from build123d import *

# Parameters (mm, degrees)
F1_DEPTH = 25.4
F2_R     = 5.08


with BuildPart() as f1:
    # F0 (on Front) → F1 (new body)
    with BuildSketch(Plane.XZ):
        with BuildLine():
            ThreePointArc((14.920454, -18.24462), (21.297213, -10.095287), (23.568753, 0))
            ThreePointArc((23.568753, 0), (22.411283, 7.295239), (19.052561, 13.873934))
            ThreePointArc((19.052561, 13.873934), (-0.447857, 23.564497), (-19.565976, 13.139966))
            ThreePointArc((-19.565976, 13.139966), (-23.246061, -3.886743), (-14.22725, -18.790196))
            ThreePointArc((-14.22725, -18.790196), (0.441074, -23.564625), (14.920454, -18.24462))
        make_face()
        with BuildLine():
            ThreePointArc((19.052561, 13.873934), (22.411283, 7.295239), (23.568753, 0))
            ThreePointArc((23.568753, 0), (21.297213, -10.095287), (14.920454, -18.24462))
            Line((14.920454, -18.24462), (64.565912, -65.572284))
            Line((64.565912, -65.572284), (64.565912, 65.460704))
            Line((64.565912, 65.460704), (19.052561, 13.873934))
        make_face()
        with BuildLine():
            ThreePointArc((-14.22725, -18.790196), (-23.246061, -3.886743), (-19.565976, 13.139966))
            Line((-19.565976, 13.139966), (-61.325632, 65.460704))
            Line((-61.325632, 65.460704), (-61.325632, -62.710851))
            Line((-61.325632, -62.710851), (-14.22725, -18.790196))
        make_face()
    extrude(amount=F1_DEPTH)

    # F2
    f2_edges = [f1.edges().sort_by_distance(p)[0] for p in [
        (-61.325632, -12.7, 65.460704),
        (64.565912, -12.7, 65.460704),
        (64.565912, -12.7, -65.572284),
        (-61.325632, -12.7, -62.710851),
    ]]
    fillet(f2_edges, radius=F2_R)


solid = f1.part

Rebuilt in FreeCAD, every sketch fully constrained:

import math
import FreeCAD as App
import Part
import Sketcher
from FreeCAD import Vector
Q = App.Units.Quantity


def edges_at(feature, points):
    """Names of the edges that pass closest to the given points."""
    edges = feature.Shape.Edges
    near = lambda p: min(range(len(edges)), key=lambda i: edges[i].distToShape(Part.Vertex(*p))[0])
    return sorted({f"Edge{near(p) + 1}" for p in points})

doc = App.newDocument("Part")
body = doc.addObject("PartDesign::Body", "Body")

sketch1 = body.newObject("Sketcher::SketchObject", "Sketch")
sketch1.AttachmentSupport = (doc.getObject("XZ_Plane"), [""])
sketch1.MapMode = "FlatFace"
sketch1.addGeometry(Part.ArcOfCircle(Part.Circle(Vector(0, -0.000001, 0), Vector(0, 0, 1), 23.568754), math.radians(36.061833), math.radians(146.115785)), False)
sketch1.addGeometry(Part.LineSegment(Vector(-19.565976, 13.139966, 0), Vector(-61.325632, 65.460704, 0)), False)
sketch1.addGeometry(Part.LineSegment(Vector(-61.325632, 65.460704, 0), Vector(-61.325632, -62.710851, 0)), False)
sketch1.addGeometry(Part.LineSegment(Vector(-61.325632, -62.710851, 0), Vector(-14.22725, -18.790196, 0)), False)
sketch1.addGeometry(Part.ArcOfCircle(Part.Circle(Vector(0, 0.000001, 0), Vector(0, 0, 1), 23.568754), math.radians(-127.131674), math.radians(-50.723694)), False)
sketch1.addGeometry(Part.LineSegment(Vector(14.920454, -18.24462, 0), Vector(64.565912, -65.572284, 0)), False)
sketch1.addGeometry(Part.LineSegment(Vector(64.565912, -65.572284, 0), Vector(64.565912, 65.460704, 0)), False)
sketch1.addGeometry(Part.LineSegment(Vector(64.565912, 65.460704, 0), Vector(19.052561, 13.873934, 0)), False)
sketch1.addConstraint(Sketcher.Constraint("Coincident", 0, 2, 1, 1))
sketch1.addConstraint(Sketcher.Constraint("Coincident", 1, 2, 2, 1))
sketch1.addConstraint(Sketcher.Constraint("Coincident", 2, 2, 3, 1))
sketch1.addConstraint(Sketcher.Constraint("Coincident", 3, 2, 4, 1))
sketch1.addConstraint(Sketcher.Constraint("Coincident", 4, 2, 5, 1))
sketch1.addConstraint(Sketcher.Constraint("Coincident", 5, 2, 6, 1))
sketch1.addConstraint(Sketcher.Constraint("Coincident", 6, 2, 7, 1))
sketch1.addConstraint(Sketcher.Constraint("Coincident", 7, 2, 0, 1))
sketch1.addConstraint(Sketcher.Constraint("Vertical", 2))
sketch1.addConstraint(Sketcher.Constraint("Vertical", 6))
sketch1.addConstraint(Sketcher.Constraint("Coincident", 0, 3, -1, 1))
sketch1.addConstraint(Sketcher.Constraint("Coincident", 4, 3, -1, 1))
sketch1.addConstraint(Sketcher.Constraint("Equal", 0, 4))
sketch1.addConstraint(Sketcher.Constraint("Horizontal", 1, 2, 6, 2))
sketch1.addConstraint(Sketcher.Constraint("Radius", 0, Q("23.568754 mm")))
sketch1.addConstraint(Sketcher.Constraint("DistanceY", 3, 2, 1, 2, Q("84.2509 mm")))
sketch1.addConstraint(Sketcher.Constraint("Distance", 3, Q("64.399391 mm")))
sketch1.addConstraint(Sketcher.Constraint("Distance", 7, Q("68.794331 mm")))
sketch1.addConstraint(Sketcher.Constraint("DistanceY", 2, 2, 2, 1, Q("128.171555 mm")))
sketch1.addConstraint(Sketcher.Constraint("DistanceY", 6, 1, 6, 2, Q("131.032988 mm")))
sketch1.addConstraint(Sketcher.Constraint("DistanceY", 2, 2, -1, 1, Q("62.710851 mm")))
sketch1.addConstraint(Sketcher.Constraint("DistanceY", 4, 2, -1, 1, Q("18.24462 mm")))
sketch1.addConstraint(Sketcher.Constraint("DistanceX", -1, 1, 5, 2, Q("64.565912 mm")))
sketch1.addConstraint(Sketcher.Constraint("DistanceY", 0, 2, 1, 2, Q("52.320738 mm")))
pad1 = body.newObject("PartDesign::Pad", "Pad")
pad1.Profile = sketch1
pad1.Length = Q("1 in")
doc.recompute()

fillet = body.newObject("PartDesign::Fillet", "Fillet")
fillet.Base = (pad1, edges_at(pad1, [
    (-61.326, -12.7, 65.461),
    (64.566, -12.7, 65.461),
    (64.566, -12.7, -65.572),
    (-61.326, -12.7, -62.711),
]))
fillet.Radius = Q("0.2 in")

doc.recompute()
